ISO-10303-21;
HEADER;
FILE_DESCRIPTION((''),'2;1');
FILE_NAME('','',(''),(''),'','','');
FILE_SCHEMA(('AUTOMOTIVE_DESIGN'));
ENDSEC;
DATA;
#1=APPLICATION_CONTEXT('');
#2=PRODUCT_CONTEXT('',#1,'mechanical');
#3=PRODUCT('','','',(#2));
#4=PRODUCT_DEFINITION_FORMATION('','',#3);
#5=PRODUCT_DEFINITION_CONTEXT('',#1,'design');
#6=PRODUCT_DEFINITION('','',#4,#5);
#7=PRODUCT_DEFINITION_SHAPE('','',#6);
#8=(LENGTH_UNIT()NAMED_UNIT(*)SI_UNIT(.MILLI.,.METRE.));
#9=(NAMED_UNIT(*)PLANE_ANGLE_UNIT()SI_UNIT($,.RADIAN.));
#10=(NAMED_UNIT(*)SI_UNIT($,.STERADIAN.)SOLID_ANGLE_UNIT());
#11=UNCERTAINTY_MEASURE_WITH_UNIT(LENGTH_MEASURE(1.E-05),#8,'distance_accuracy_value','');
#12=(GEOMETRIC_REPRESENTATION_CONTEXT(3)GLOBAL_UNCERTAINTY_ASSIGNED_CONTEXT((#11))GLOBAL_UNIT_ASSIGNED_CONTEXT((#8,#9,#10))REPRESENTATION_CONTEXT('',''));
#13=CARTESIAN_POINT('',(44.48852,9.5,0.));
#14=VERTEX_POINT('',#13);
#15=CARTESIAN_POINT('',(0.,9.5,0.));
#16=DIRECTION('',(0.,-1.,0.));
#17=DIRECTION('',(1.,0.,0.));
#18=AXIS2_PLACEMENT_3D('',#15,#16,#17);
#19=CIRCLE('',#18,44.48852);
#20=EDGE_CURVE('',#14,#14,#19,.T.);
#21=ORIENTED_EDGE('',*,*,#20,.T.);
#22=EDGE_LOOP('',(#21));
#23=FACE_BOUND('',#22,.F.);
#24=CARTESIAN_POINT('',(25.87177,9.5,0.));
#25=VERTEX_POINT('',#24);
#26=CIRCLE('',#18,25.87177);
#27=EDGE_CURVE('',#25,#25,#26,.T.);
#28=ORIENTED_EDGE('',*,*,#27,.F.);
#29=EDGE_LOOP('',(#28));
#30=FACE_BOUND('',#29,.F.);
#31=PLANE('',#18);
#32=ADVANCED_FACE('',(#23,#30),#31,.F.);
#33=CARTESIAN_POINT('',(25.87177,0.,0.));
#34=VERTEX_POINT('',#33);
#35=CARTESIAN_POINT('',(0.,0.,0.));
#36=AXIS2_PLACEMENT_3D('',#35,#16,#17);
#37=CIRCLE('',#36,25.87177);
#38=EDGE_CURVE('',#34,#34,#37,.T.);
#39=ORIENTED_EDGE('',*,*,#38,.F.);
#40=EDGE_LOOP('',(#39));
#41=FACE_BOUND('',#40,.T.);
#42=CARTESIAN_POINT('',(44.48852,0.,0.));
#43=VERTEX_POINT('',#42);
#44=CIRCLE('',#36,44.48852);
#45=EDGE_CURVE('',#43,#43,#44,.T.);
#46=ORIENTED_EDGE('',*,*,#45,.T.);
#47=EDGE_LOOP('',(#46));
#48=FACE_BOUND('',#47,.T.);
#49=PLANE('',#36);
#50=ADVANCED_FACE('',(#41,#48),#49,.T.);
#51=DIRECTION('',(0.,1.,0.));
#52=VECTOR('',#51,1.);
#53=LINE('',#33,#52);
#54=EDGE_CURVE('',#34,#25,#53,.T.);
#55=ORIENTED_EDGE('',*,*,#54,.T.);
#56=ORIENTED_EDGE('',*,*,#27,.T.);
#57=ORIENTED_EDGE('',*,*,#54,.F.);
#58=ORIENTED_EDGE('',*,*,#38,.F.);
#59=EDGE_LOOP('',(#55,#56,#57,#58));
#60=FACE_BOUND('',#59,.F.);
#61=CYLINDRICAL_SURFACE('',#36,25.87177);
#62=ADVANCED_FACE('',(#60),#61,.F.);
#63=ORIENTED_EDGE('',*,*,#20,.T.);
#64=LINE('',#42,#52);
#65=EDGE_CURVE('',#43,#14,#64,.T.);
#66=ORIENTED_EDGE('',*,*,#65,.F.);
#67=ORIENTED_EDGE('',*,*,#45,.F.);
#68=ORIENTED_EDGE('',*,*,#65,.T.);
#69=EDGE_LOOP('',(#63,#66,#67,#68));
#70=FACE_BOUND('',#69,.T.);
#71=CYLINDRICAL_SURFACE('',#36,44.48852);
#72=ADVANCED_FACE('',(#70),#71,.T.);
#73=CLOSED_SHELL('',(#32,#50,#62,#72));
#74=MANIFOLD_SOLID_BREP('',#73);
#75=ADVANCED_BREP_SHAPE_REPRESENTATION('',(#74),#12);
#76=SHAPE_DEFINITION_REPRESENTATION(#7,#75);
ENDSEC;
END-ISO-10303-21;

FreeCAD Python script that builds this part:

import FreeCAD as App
import Part
import Sketcher

V = App.Vector
Q = App.Units.Quantity

doc = App.newDocument("Part")
body = doc.addObject("PartDesign::Body", "Body")

sketch1 = doc.addObject("Sketcher::SketchObject", "Sketch")
body.addObject(sketch1)
sketch1.AttachmentSupport = (doc.XZ_Plane, [""])
sketch1.MapMode = "FlatFace"
sketch1.addGeometry(Part.Circle(V(0, 0, 0), V(0, 0, 1), 44), False)
sketch1.addConstraint(Sketcher.Constraint("Coincident", 0, 3, -1, 1))
sketch1.addConstraint(Sketcher.Constraint("Diameter", 0, Q("88.97704 mm")))
pad1 = doc.addObject("PartDesign::Pad", "Pad")
body.addObject(pad1)
pad1.Profile = sketch1
pad1.Length = 9.5
pad1.Reversed = True

sketch2 = doc.addObject("Sketcher::SketchObject", "Sketch001")
body.addObject(sketch2)
sketch2.AttachmentSupport = (doc.XZ_Plane, [""])
sketch2.MapMode = "FlatFace"
sketch2.addGeometry(Part.Circle(V(0, 0, 0), V(0, 0, 1), 26), False)
sketch2.addConstraint(Sketcher.Constraint("Coincident", 0, 3, -1, 1))
sketch2.addConstraint(Sketcher.Constraint("Diameter", 0, Q("51.622956 mm")))
pad2 = doc.addObject("PartDesign::Pad", "Pad001")
body.addObject(pad2)
pad2.Profile = sketch2
pad2.Length = 8.7
pad2.Reversed = True

sketch3 = doc.addObject("Sketcher::SketchObject", "Sketch002")
body.addObject(sketch3)
sketch3.AttachmentSupport = (doc.XZ_Plane, [""])
sketch3.MapMode = "FlatFace"
sketch3.addGeometry(Part.Circle(V(0, 0, 0), V(0, 0, 1), 26), False)
sketch3.addConstraint(Sketcher.Constraint("Coincident", 0, 3, -1, 1))
sketch3.addConstraint(Sketcher.Constraint("Diameter", 0, Q("51.74354 mm")))
pocket1 = doc.addObject("PartDesign::Pocket", "Pocket")
body.addObject(pocket1)
pocket1.Profile = sketch3
pocket1.Length = 25

doc.recompute()
